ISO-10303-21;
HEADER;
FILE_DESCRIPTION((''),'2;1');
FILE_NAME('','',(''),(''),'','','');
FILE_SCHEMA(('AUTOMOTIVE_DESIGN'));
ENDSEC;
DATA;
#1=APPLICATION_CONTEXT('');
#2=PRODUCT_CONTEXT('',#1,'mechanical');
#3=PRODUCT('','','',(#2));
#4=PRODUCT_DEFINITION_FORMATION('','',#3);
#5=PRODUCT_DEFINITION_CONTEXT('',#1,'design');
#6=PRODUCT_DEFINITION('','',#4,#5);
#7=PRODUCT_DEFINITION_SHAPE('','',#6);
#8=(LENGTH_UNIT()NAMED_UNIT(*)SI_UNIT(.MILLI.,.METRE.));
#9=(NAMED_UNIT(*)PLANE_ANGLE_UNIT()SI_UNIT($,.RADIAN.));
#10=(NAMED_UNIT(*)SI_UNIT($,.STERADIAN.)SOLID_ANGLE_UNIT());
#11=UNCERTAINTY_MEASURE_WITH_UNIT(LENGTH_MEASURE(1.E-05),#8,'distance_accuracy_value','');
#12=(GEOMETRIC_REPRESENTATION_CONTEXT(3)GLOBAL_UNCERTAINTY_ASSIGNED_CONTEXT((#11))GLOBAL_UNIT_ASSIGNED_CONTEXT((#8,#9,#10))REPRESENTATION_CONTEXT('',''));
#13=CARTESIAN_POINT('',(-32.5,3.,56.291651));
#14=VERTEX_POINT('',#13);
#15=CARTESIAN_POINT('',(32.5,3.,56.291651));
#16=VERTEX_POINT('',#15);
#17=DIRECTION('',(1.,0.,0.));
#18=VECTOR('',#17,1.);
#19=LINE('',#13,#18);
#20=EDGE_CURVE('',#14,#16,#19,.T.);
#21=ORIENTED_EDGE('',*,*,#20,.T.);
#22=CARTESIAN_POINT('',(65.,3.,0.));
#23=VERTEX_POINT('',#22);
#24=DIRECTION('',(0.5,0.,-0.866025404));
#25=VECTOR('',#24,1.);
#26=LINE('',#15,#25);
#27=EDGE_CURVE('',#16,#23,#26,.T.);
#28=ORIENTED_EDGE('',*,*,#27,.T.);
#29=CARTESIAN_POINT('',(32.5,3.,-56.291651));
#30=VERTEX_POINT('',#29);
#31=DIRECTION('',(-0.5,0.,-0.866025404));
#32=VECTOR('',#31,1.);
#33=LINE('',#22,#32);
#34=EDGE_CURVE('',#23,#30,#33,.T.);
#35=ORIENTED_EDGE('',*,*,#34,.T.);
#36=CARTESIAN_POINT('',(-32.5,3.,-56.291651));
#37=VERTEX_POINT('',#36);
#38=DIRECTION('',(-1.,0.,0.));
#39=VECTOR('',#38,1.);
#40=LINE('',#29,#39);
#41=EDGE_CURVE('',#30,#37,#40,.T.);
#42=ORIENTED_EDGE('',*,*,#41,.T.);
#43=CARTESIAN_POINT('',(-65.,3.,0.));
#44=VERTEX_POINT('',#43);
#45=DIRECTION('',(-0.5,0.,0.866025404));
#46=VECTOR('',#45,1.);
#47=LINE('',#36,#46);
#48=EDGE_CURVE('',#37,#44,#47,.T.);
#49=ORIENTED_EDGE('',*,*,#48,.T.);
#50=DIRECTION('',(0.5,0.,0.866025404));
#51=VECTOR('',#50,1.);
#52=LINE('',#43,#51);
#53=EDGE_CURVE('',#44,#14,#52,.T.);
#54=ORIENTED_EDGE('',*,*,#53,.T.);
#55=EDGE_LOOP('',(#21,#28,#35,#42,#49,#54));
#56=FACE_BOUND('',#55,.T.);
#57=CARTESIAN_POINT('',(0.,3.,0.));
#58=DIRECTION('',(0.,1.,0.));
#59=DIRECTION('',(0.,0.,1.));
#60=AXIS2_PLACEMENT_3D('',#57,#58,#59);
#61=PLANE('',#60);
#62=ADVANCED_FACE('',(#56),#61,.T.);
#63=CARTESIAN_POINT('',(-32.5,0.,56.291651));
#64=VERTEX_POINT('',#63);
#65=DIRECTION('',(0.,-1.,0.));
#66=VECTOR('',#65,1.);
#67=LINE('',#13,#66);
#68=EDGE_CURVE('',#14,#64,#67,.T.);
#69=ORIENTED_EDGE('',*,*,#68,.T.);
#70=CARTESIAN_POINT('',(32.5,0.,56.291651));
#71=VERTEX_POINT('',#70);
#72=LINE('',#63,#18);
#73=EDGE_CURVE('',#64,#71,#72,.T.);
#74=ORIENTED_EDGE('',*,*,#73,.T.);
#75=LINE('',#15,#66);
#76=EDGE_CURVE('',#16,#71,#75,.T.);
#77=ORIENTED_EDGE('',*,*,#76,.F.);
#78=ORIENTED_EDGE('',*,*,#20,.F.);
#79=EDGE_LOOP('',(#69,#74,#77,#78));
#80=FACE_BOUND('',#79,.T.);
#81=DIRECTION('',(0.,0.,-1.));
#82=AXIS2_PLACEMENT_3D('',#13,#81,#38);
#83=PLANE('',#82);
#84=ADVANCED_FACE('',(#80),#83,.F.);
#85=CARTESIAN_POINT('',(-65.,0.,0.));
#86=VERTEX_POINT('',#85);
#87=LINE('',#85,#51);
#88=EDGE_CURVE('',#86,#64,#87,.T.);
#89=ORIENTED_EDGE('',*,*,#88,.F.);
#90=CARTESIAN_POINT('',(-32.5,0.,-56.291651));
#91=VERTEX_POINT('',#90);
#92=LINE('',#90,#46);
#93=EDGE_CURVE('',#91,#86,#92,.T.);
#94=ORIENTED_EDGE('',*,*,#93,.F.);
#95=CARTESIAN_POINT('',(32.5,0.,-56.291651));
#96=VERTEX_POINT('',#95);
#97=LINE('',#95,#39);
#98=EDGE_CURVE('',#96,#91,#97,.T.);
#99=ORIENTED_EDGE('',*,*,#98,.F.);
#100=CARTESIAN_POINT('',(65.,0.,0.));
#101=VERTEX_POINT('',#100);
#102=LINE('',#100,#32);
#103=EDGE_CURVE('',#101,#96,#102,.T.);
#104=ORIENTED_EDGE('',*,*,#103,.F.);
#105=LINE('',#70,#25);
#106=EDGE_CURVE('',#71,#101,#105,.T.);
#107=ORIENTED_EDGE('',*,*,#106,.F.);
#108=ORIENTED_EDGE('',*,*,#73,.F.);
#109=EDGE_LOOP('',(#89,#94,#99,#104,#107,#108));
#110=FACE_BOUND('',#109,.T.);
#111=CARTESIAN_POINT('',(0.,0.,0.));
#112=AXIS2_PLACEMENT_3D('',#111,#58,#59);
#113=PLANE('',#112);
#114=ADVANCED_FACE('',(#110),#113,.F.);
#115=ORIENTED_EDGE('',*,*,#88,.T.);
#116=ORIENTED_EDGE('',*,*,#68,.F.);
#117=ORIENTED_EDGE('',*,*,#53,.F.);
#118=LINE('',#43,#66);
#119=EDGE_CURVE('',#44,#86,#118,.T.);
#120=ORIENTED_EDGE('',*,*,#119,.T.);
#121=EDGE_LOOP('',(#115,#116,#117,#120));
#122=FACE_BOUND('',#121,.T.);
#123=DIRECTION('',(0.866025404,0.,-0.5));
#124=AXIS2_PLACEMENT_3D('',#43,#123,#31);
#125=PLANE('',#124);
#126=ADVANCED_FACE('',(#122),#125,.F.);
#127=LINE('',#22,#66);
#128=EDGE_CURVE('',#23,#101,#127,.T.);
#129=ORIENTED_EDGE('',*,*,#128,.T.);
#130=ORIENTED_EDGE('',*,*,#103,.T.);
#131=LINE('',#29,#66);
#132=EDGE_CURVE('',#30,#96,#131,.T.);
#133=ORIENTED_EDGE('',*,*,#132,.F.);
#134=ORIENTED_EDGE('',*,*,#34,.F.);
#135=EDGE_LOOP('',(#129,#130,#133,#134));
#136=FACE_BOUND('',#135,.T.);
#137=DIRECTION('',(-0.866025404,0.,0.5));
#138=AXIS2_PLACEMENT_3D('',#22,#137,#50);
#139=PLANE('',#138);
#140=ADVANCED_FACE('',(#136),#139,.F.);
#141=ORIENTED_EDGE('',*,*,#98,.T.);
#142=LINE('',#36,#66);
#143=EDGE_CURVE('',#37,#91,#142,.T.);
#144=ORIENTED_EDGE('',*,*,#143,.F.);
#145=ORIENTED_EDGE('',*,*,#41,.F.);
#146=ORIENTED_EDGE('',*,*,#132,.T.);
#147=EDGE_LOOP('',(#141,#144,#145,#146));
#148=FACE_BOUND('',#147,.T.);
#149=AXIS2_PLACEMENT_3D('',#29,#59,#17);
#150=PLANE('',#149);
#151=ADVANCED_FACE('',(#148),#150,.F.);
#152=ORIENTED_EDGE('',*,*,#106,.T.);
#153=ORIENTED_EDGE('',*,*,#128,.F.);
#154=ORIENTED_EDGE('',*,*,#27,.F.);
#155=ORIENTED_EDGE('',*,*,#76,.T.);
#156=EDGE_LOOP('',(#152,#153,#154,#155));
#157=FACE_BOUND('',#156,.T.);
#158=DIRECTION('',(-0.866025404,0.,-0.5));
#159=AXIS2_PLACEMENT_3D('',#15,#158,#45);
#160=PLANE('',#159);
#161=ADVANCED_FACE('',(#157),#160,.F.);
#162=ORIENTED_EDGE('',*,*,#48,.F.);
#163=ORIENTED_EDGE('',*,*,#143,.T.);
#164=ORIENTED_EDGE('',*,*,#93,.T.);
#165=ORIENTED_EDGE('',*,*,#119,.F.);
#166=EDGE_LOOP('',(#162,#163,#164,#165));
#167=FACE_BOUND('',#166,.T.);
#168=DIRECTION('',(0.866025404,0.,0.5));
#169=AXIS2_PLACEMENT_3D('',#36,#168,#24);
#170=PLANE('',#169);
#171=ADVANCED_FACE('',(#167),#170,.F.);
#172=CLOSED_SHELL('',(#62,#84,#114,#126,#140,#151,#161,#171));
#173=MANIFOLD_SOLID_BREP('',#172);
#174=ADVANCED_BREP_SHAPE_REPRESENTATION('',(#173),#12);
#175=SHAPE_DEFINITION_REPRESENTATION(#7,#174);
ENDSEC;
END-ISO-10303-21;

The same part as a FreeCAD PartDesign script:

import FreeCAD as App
import Part
import Sketcher
from FreeCAD import Vector
Q = App.Units.Quantity

doc = App.newDocument("Part")
body = doc.addObject("PartDesign::Body", "Body")

# Sketch on XZ plane
sketch1 = body.newObject("Sketcher::SketchObject", "Sketch")
sketch1.AttachmentSupport = (doc.getObject("XZ_Plane"), [""])
sketch1.MapMode = "FlatFace"
sketch1.addGeometry([
    Part.LineSegment(Vector(65, 0, 0), Vector(32, -56, 0)),  # 0
    Part.LineSegment(Vector(32, -56, 0), Vector(-32, -56, 0)),  # 1
    Part.LineSegment(Vector(-32, -56, 0), Vector(-65, 0, 0)),  # 2
    Part.LineSegment(Vector(-65, 0, 0), Vector(-32, 56, 0)),  # 3
    Part.LineSegment(Vector(-32, 56, 0), Vector(32, 56, 0)),  # 4
    Part.LineSegment(Vector(32, 56, 0), Vector(65, 0, 0)),  # 5
], False)
sketch1.addConstraint([
    Sketcher.Constraint("Coincident", 0, 2, 1, 1),
    Sketcher.Constraint("Coincident", 1, 2, 2, 1),
    Sketcher.Constraint("Coincident", 2, 2, 3, 1),
    Sketcher.Constraint("Coincident", 3, 2, 4, 1),
    Sketcher.Constraint("Coincident", 4, 2, 5, 1),
    Sketcher.Constraint("Coincident", 5, 2, 0, 1),
    Sketcher.Constraint("Horizontal", 1),
    Sketcher.Constraint("Horizontal", 4),
    Sketcher.Constraint("Symmetric", 0, 2, 3, 2, -1, 1),
    Sketcher.Constraint("Symmetric", 2, 2, 5, 2, -1, 1),
    Sketcher.Constraint("PointOnObject", 2, 2, -1),
    Sketcher.Constraint("Parallel", 2, 5),
    Sketcher.Constraint("Vertical", 1, 2, 3, 2),
    Sketcher.Constraint("DistanceX", 1, 2, 1, 1, Q("65 mm")),
    Sketcher.Constraint("Angle", 0, Q("-120 deg")),
    Sketcher.Constraint("Distance", 0, Q("65 mm")),
])
pad1 = body.newObject("PartDesign::Pad", "Pad")
pad1.Profile = sketch1
pad1.Length = 3
pad1.Reversed = True

doc.recompute()
